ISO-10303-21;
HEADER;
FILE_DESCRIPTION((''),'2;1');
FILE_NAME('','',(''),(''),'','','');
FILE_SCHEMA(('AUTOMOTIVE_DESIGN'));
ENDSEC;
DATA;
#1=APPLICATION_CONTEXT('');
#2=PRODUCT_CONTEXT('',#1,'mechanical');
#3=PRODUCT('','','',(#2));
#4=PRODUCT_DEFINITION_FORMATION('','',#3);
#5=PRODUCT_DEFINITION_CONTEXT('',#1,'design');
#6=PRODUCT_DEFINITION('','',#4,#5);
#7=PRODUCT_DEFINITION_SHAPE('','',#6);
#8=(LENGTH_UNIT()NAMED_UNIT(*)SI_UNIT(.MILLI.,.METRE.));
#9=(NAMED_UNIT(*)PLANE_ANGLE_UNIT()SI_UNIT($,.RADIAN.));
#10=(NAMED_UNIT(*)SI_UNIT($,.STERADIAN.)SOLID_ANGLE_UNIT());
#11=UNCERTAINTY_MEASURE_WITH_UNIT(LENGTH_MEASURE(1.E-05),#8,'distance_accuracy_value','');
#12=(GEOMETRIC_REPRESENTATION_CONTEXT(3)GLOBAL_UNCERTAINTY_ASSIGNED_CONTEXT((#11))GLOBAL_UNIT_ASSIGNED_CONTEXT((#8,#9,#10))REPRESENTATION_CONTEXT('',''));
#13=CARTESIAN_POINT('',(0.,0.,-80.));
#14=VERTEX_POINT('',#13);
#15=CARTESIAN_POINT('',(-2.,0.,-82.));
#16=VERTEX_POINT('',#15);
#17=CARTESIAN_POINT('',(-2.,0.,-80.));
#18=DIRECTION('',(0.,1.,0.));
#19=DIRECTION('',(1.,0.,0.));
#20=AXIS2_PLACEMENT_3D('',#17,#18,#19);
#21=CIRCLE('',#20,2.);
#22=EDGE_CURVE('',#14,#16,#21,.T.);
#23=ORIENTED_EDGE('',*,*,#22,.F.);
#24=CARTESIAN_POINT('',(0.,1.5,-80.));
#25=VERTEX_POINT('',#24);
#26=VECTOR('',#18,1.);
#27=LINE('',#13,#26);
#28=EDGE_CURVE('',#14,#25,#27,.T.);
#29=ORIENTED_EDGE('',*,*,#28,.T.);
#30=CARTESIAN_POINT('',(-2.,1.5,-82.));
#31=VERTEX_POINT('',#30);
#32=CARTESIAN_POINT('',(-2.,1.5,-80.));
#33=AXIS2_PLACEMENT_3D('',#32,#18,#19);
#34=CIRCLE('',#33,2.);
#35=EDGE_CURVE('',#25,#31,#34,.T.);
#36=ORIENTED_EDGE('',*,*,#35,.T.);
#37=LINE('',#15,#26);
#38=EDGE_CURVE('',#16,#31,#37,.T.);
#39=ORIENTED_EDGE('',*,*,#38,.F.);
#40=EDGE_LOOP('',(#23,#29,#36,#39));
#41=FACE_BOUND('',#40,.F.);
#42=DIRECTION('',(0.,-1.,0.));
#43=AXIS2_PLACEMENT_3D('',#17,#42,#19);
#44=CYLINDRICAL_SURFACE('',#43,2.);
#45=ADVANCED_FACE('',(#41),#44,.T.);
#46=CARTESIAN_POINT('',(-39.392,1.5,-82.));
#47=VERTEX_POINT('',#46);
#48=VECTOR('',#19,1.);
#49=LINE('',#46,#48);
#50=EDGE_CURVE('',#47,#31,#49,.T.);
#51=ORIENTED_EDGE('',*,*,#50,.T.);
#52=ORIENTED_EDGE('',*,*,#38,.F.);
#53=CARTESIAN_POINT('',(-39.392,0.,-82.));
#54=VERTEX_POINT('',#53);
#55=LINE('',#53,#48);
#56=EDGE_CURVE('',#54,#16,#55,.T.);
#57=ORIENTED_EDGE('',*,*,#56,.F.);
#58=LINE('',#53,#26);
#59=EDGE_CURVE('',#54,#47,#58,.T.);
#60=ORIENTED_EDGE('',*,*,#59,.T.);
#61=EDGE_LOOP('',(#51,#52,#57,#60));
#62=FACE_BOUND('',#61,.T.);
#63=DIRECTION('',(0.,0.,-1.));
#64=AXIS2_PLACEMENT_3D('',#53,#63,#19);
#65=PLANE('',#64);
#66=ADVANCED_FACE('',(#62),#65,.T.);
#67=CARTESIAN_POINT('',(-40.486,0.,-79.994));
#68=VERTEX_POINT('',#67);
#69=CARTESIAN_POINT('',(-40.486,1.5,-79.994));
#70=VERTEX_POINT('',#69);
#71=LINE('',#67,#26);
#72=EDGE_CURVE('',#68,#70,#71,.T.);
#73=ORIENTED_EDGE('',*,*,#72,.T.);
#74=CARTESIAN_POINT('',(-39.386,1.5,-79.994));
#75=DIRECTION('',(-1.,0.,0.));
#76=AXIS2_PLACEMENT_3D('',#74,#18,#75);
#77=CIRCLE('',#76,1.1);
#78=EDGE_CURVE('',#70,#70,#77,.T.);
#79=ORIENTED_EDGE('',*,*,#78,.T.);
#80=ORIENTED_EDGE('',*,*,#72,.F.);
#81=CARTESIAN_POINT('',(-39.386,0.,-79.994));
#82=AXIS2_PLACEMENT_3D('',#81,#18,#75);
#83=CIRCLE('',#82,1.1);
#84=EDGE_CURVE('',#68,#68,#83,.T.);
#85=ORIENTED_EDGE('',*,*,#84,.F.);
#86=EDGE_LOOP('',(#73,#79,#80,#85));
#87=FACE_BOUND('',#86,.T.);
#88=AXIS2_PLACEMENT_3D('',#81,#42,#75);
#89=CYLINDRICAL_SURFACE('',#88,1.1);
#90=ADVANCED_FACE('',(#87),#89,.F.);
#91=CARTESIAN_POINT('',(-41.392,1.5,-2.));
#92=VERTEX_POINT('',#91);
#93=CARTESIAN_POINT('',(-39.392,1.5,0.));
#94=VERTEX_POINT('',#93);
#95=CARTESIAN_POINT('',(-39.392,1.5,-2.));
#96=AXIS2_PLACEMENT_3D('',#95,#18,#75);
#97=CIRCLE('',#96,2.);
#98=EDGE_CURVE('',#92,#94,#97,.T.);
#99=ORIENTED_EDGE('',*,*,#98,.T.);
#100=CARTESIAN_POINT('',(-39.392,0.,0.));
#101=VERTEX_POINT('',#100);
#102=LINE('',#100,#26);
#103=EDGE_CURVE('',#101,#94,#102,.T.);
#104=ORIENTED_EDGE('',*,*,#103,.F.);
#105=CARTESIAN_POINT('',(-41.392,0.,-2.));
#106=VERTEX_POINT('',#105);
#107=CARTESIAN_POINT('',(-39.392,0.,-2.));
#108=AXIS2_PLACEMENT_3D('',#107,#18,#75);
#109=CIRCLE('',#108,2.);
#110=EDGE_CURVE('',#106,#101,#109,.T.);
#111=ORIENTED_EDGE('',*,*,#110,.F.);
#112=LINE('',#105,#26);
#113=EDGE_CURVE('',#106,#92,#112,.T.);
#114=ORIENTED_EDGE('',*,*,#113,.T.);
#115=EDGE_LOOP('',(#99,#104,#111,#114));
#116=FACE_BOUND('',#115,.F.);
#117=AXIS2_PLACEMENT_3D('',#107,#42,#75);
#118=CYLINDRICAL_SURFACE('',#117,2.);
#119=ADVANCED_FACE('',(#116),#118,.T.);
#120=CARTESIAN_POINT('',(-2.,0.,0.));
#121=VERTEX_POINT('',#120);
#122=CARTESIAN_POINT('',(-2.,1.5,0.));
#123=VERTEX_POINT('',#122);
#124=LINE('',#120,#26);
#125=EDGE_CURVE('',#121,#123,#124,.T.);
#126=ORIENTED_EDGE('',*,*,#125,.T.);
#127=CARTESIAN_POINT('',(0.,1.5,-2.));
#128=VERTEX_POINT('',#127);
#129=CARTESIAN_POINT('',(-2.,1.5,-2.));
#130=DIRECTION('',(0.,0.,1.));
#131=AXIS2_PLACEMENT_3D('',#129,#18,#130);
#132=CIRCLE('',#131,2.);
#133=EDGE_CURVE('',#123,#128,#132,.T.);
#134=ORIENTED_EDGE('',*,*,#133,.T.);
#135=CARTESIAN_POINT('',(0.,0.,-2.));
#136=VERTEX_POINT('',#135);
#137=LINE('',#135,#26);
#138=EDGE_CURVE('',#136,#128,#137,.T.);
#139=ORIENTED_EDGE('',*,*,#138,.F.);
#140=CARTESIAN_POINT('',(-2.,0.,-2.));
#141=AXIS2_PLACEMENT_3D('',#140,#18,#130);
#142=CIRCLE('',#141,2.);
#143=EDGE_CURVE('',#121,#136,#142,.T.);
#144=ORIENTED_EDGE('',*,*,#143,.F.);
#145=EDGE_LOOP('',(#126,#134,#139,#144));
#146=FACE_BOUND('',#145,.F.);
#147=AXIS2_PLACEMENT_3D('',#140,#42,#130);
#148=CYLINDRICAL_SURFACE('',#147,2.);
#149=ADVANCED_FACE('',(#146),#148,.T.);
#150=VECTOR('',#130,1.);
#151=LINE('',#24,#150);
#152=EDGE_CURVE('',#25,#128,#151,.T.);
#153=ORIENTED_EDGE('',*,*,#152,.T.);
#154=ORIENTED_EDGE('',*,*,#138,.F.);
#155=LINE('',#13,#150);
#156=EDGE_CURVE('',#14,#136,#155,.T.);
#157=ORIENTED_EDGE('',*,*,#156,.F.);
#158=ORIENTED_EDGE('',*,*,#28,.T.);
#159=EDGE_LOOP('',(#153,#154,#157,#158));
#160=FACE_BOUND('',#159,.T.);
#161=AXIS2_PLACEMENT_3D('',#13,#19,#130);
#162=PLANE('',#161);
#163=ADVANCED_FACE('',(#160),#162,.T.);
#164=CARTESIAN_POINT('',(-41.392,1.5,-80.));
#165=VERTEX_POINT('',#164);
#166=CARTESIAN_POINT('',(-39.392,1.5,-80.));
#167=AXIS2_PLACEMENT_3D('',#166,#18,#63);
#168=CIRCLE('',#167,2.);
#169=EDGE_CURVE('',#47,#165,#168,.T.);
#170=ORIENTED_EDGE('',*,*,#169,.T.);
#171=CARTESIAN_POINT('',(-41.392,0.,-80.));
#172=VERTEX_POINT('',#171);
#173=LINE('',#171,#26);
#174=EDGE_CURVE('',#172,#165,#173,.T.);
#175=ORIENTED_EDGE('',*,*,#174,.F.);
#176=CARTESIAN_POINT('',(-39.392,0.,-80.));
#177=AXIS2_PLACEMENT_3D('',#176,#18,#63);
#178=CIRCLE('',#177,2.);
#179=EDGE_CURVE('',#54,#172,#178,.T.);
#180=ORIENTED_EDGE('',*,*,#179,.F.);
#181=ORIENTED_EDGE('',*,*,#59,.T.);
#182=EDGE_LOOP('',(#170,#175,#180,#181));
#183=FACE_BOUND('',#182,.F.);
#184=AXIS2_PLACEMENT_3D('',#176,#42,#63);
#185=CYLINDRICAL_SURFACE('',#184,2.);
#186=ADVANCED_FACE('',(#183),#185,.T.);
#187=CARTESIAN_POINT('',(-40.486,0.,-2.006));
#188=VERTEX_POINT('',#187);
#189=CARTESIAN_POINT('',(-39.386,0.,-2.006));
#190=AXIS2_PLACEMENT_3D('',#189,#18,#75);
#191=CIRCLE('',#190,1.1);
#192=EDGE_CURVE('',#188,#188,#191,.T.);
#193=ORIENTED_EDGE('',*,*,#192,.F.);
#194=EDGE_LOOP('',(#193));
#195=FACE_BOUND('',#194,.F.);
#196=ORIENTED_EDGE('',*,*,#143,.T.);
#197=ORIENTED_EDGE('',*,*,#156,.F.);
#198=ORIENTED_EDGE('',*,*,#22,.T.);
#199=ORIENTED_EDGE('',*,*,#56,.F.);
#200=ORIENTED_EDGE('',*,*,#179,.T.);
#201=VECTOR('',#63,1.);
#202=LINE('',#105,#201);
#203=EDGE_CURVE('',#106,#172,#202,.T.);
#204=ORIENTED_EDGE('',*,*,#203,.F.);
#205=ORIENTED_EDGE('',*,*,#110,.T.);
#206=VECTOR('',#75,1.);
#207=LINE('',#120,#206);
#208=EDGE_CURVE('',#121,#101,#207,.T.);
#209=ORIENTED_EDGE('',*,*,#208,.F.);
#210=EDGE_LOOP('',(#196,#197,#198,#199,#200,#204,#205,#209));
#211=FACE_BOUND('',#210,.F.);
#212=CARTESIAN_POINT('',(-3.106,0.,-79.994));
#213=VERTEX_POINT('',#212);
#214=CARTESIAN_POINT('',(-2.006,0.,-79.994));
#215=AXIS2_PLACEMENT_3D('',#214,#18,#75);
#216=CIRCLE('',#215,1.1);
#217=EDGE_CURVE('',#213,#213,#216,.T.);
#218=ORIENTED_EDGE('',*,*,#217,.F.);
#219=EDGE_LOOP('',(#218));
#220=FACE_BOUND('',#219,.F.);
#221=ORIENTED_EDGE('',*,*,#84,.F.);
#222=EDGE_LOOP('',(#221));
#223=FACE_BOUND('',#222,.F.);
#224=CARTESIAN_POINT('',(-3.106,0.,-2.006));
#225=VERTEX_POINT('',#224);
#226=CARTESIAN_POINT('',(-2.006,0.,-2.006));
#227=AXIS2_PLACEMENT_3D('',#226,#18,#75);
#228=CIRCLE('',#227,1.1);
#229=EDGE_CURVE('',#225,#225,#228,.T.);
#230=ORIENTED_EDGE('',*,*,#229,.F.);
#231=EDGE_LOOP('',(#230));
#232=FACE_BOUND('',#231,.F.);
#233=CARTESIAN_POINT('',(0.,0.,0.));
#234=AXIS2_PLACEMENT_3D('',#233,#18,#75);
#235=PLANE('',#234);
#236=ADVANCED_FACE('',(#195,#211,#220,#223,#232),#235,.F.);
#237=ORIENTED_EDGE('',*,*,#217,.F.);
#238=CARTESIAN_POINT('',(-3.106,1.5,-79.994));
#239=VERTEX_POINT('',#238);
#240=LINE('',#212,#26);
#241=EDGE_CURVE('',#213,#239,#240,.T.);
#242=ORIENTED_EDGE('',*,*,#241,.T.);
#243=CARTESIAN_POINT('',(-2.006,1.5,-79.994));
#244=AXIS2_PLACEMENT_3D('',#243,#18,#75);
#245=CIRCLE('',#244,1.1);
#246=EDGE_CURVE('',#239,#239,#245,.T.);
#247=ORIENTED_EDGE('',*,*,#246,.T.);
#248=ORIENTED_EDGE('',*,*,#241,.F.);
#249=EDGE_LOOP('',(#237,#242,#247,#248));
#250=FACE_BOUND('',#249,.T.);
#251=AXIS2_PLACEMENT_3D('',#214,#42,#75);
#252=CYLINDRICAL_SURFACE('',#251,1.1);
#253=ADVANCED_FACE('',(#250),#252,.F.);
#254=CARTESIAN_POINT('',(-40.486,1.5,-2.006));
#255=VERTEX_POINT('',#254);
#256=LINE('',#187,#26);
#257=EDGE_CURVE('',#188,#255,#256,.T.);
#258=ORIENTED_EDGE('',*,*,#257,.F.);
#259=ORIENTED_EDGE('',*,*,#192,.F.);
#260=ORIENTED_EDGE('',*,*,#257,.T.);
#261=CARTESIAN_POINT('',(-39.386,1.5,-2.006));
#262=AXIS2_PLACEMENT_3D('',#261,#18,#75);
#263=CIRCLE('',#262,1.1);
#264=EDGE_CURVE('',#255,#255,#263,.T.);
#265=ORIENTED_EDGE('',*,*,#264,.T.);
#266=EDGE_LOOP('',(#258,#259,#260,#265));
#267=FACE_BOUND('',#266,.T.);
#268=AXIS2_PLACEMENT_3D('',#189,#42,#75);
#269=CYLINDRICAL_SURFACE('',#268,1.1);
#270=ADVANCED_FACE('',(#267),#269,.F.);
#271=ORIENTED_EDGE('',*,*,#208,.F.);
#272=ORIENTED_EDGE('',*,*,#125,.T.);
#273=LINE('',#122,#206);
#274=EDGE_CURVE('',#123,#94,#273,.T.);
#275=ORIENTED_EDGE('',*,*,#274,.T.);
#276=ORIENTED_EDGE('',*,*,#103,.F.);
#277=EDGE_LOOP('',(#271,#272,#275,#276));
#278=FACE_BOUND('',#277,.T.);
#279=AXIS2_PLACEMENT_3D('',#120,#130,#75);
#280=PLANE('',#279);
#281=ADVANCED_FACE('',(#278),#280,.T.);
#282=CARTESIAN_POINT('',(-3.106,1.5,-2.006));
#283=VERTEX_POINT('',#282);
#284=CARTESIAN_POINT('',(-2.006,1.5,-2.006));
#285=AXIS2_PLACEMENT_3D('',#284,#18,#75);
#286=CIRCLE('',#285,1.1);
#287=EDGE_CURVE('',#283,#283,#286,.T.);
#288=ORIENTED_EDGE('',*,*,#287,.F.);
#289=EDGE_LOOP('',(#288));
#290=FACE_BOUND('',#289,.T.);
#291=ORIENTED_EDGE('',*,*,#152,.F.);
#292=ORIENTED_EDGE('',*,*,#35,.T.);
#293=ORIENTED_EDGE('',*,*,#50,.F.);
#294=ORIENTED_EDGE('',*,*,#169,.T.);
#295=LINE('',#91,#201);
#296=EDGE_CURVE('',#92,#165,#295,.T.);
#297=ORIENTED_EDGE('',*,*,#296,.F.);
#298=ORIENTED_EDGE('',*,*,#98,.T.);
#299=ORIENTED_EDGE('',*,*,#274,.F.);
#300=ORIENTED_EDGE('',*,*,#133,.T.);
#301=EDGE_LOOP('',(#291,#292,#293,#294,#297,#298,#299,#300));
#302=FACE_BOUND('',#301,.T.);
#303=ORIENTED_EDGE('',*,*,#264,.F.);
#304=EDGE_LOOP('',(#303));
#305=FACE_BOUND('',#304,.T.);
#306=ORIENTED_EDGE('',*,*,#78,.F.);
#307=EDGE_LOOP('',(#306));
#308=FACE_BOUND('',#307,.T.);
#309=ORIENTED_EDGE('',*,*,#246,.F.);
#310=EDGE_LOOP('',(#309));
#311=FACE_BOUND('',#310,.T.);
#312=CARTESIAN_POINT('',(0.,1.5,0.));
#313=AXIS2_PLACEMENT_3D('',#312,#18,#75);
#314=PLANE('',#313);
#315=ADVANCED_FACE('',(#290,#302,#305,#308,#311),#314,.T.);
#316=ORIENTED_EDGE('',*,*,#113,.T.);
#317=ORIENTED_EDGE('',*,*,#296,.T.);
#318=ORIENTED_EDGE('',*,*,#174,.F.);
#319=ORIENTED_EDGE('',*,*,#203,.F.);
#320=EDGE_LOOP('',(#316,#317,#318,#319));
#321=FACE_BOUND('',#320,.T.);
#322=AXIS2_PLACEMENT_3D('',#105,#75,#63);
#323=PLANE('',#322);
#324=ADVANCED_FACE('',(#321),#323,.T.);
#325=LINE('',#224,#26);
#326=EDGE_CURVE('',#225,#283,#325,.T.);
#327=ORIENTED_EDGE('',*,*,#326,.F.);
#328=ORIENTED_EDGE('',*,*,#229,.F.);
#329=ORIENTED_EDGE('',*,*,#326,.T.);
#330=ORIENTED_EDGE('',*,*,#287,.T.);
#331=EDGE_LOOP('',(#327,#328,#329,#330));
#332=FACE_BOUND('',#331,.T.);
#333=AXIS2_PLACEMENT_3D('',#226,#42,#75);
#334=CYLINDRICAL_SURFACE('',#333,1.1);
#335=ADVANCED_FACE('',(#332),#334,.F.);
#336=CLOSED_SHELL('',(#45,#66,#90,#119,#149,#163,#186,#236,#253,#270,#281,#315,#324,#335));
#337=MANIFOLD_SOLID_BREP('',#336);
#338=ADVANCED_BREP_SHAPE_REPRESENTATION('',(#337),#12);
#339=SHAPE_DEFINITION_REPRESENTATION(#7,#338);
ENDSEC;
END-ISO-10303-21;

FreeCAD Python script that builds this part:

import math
import FreeCAD as App
import Part
import Sketcher

doc = App.newDocument("Part")
body = doc.addObject("PartDesign::Body", "Body")

# Sketch on XZ plane
sketch1 = body.newObject("Sketcher::SketchObject", "Sketch")
sketch1.AttachmentSupport = (doc.getObject("XZ_Plane"), [""])
sketch1.MapMode = "FlatFace"
sketch1.addGeometry([
    Part.LineSegment(App.Vector(-39.4, 0, 0), App.Vector(-2, 0, 0)),  # 0
    Part.ArcOfCircle(Part.Circle(App.Vector(-2, -2, 0), App.Vector(0, 0, 1), 2), math.radians(0), math.radians(90)),  # 1
    Part.LineSegment(App.Vector(0, -2, 0), App.Vector(0, -80, 0)),  # 2
    Part.ArcOfCircle(Part.Circle(App.Vector(-2, -80, 0), App.Vector(0, 0, 1), 2), math.radians(-90), math.radians(0)),  # 3
    Part.LineSegment(App.Vector(-2, -82, 0), App.Vector(-39.4, -82, 0)),  # 4
    Part.ArcOfCircle(Part.Circle(App.Vector(-39.4, -80, 0), App.Vector(0, 0, 1), 2), math.radians(180), math.radians(270)),  # 5
    Part.LineSegment(App.Vector(-41.4, -80, 0), App.Vector(-41.4, -2, 0)),  # 6
    Part.ArcOfCircle(Part.Circle(App.Vector(-39.4, -2, 0), App.Vector(0, 0, 1), 2), math.radians(90), math.radians(180)),  # 7
    Part.Circle(App.Vector(-2, -80, 0), App.Vector(0, 0, 1), 1.1),  # 8
    Part.Circle(App.Vector(-39.4, -80, 0), App.Vector(0, 0, 1), 1.1),  # 9
    Part.Circle(App.Vector(-2, -2, 0), App.Vector(0, 0, 1), 1.1),  # 10
    Part.Circle(App.Vector(-39.4, -2, 0), App.Vector(0, 0, 1), 1.1),  # 11
], False)
sketch1.addConstraint([
    Sketcher.Constraint("Tangent", 0, 2, 1, 2),
    Sketcher.Constraint("Tangent", 1, 1, 2, 1),
    Sketcher.Constraint("Tangent", 2, 2, 3, 2),
    Sketcher.Constraint("Tangent", 3, 1, 4, 1),
    Sketcher.Constraint("Tangent", 4, 2, 5, 2),
    Sketcher.Constraint("Tangent", 5, 1, 6, 1),
    Sketcher.Constraint("Tangent", 6, 2, 7, 2),
    Sketcher.Constraint("Tangent", 7, 1, 0, 1),
    Sketcher.Constraint("Horizontal", 0),
    Sketcher.Constraint("Vertical", 2),
    Sketcher.Constraint("Horizontal", 4),
    Sketcher.Constraint("Vertical", 6),
    Sketcher.Constraint("Equal", 1, 3),
    Sketcher.Constraint("Equal", 3, 5),
    Sketcher.Constraint("Equal", 5, 7),
    Sketcher.Constraint("Equal", 8, 9),
    Sketcher.Constraint("Equal", 9, 10),
    Sketcher.Constraint("Equal", 10, 11),
    Sketcher.Constraint("PointOnObject", 0, 2, -1),
    Sketcher.Constraint("PointOnObject", 1, 1, -2),
    Sketcher.Constraint("Horizontal", 8, 3, 9, 3),
    Sketcher.Constraint("Horizontal", 10, 3, 11, 3),
    Sketcher.Constraint("Vertical", 8, 3, 10, 3),
    Sketcher.Constraint("Vertical", 9, 3, 11, 3),
    Sketcher.Constraint("Radius", 1, 2.0),
    Sketcher.Constraint("Diameter", 8, 2.2),
    Sketcher.Constraint("DistanceY", 3, 1, -1, 1, 82.0),
    Sketcher.Constraint("DistanceX", 8, 3, -1, 1, 2.006),
    Sketcher.Constraint("DistanceY", 10, 3, -1, 1, 2.006),
    Sketcher.Constraint("DistanceX", 5, 1, -1, 1, 41.392),
    Sketcher.Constraint("DistanceX", 9, 3, 3, 3, 37.386),
    Sketcher.Constraint("DistanceY", 3, 1, 8, 3, 2.006),
])
pad1 = body.newObject("PartDesign::Pad", "Pad")
pad1.Profile = sketch1
pad1.Length = 1.5
pad1.Reversed = True

doc.recompute()
